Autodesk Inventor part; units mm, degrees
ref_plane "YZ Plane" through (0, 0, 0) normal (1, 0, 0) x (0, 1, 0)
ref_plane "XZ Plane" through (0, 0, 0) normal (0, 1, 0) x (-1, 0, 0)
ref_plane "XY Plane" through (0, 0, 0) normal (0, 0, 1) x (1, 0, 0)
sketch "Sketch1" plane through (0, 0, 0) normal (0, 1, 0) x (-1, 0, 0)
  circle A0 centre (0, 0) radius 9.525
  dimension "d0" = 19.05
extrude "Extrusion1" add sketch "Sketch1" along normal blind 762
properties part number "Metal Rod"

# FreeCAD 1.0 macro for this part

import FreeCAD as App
import Part
import Sketcher
from FreeCAD import Vector
Q = App.Units.Quantity

doc = App.newDocument("Part")
body = doc.addObject("PartDesign::Body", "Body")

# Sketch on XZ plane
sketch1 = body.newObject("Sketcher::SketchObject", "Sketch")
sketch1.AttachmentSupport = (doc.getObject("XZ_Plane"), [""])
sketch1.MapMode = "FlatFace"
sketch1.addGeometry(Part.Circle(Vector(0, 0, 0), Vector(0, 0, 1), 10), False)
sketch1.addConstraint(Sketcher.Constraint("Coincident", 0, 3, -1, 1))
sketch1.addConstraint(Sketcher.Constraint("Diameter", 0, Q("0.75 in")))
pad1 = body.newObject("PartDesign::Pad", "Pad")
pad1.Profile = sketch1
pad1.Length = Q("30 in")
pad1.Reversed = True

doc.recompute()
